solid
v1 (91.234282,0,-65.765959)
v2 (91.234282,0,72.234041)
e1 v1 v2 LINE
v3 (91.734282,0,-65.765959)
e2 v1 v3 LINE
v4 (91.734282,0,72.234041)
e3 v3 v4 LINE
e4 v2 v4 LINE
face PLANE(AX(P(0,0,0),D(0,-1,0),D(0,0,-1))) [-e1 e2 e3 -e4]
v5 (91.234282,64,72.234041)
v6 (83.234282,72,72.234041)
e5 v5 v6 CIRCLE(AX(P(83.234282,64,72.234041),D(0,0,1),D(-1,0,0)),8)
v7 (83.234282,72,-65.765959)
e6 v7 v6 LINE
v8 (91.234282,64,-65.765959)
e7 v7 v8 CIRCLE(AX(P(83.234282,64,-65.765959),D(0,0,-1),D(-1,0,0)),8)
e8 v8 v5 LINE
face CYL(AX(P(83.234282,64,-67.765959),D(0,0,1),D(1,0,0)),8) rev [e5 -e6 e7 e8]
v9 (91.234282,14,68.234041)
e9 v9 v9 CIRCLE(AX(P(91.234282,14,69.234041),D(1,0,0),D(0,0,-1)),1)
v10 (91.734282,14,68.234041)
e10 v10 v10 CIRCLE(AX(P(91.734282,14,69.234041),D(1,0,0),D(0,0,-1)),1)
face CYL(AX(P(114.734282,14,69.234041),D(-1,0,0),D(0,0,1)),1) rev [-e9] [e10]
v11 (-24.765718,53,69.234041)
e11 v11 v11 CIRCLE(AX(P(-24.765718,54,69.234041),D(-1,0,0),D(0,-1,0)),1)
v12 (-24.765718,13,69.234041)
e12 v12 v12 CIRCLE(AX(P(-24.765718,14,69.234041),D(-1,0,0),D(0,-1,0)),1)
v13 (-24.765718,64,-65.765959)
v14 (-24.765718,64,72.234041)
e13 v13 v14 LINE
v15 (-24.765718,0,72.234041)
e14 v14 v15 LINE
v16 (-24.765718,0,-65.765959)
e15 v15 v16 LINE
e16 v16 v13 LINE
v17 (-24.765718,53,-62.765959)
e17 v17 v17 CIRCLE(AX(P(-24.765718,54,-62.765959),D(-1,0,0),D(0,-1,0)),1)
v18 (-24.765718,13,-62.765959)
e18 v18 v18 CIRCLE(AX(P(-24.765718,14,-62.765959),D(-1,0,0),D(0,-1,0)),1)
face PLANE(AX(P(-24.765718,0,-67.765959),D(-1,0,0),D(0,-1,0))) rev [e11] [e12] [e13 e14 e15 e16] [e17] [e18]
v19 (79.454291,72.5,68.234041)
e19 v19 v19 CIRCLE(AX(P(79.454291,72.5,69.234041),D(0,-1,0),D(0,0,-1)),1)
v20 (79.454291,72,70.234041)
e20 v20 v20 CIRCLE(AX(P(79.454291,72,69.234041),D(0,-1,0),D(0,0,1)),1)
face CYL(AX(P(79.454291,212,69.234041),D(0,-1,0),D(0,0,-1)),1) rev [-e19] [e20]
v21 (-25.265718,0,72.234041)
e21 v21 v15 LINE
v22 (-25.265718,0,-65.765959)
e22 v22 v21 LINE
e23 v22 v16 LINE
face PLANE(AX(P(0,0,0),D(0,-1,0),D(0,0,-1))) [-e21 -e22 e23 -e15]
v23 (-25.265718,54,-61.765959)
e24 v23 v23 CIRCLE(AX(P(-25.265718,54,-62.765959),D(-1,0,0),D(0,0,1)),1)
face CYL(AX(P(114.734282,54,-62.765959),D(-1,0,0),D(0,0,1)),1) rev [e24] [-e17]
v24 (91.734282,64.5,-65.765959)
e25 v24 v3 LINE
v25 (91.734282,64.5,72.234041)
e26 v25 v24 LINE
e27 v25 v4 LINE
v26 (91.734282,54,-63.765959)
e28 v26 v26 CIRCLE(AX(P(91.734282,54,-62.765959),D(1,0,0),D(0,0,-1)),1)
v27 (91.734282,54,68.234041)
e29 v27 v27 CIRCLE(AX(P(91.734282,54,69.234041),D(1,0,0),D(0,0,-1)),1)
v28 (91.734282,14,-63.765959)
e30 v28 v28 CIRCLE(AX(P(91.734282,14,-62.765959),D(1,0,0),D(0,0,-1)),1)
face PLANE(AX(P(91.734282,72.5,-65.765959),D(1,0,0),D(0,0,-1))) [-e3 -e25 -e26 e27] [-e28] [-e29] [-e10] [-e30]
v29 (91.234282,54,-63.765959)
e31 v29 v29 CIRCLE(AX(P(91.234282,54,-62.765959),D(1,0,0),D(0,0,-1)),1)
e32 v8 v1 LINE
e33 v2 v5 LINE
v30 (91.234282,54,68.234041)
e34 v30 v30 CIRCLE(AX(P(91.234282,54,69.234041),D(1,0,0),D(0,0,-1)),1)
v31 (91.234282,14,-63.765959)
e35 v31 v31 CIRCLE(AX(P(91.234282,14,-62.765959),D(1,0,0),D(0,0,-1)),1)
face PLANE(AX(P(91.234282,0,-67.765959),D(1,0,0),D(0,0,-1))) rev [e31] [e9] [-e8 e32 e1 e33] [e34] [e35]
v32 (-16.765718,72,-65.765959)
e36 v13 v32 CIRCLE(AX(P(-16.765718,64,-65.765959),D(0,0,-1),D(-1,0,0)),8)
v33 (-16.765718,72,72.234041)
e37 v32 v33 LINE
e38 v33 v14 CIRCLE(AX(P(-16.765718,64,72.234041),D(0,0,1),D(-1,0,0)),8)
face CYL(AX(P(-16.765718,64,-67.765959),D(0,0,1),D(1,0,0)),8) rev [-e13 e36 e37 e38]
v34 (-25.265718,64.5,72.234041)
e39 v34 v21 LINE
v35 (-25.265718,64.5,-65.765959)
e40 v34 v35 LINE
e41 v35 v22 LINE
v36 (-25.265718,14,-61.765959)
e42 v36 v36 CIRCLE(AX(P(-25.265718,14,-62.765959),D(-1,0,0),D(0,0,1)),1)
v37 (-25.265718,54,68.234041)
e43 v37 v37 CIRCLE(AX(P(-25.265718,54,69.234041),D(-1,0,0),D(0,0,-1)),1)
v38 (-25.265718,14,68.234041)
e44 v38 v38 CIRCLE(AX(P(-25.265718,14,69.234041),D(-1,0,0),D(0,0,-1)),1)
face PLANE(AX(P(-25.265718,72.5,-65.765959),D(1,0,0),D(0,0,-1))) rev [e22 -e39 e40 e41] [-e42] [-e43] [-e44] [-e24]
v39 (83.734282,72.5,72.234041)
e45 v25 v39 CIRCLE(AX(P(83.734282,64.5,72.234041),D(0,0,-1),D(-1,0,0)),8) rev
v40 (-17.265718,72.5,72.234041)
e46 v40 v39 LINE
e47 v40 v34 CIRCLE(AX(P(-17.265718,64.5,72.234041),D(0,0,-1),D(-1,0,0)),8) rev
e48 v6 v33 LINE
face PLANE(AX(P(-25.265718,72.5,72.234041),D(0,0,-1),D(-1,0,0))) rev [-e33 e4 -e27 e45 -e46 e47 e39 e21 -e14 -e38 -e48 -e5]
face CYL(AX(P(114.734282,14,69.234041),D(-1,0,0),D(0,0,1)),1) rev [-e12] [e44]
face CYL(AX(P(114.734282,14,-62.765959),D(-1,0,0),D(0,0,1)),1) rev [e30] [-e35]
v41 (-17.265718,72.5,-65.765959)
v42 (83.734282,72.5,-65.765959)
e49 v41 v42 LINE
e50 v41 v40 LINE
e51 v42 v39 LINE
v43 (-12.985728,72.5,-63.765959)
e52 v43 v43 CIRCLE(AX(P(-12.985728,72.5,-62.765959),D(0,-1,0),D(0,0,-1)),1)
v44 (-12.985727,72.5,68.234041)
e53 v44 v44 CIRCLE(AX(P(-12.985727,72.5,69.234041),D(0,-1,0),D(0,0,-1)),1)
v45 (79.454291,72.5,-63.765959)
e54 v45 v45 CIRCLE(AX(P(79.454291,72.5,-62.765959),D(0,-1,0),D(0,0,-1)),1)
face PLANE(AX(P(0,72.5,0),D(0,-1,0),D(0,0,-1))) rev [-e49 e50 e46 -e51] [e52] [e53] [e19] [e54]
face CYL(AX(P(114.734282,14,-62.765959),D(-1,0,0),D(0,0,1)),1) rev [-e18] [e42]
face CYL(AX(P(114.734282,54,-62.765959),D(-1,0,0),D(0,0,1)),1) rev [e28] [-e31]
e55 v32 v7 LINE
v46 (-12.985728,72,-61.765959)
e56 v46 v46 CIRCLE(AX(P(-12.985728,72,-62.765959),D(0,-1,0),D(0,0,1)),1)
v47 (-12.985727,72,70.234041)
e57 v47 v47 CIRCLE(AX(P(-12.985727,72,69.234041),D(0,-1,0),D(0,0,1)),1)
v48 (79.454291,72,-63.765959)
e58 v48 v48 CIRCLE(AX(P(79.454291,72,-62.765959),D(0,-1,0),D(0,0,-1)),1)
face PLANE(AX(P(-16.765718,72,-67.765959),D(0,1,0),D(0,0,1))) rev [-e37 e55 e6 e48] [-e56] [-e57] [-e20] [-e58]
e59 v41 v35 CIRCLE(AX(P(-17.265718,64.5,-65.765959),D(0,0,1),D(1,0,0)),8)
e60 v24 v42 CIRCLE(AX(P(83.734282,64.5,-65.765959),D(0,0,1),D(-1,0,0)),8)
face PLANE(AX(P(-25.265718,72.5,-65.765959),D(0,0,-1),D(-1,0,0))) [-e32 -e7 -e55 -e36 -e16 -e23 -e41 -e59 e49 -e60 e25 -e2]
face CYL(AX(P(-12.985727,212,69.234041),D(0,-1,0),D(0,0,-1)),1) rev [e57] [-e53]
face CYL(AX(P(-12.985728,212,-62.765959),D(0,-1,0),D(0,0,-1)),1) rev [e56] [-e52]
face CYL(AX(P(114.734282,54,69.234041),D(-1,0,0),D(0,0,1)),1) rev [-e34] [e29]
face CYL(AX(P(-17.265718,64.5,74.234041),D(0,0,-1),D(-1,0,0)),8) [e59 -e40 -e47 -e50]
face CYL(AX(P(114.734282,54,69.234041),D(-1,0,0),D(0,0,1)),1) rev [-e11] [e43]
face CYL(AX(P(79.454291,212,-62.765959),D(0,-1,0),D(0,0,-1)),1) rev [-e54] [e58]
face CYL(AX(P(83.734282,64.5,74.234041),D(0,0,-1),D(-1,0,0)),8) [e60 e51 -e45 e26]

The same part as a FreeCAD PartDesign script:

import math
import FreeCAD as App
import Part
import Sketcher


def add_polygon(sketch, points):
    """Adds a closed chain of lines whose ends are joined by coincident constraints."""
    first, n = sketch.GeometryCount, len(points)
    for a, b in zip(points, points[1:] + points[:1]):
        sketch.addGeometry(Part.LineSegment(App.Vector(*a, 0), App.Vector(*b, 0)), False)
    for i in range(n):
        sketch.addConstraint(Sketcher.Constraint("Coincident", first + i, 2, first + (i + 1) % n, 1))

doc = App.newDocument("Part")
body = doc.addObject("PartDesign::Body", "Body")

sketch1 = doc.addObject("Sketcher::SketchObject", "Sketch")
body.addObject(sketch1)
sketch1.AttachmentSupport = (doc.XZ_Plane, [""])
sketch1.MapMode = "FlatFace"
add_polygon(sketch1, [(-25, -66), (-25, 72), (92, 72), (92, -66)])
sketch1.addConstraint(Sketcher.Constraint("Vertical", 0))
sketch1.addConstraint(Sketcher.Constraint("Horizontal", 1))
sketch1.addConstraint(Sketcher.Constraint("Vertical", 2))
sketch1.addConstraint(Sketcher.Constraint("Horizontal", 3))
sketch1.addConstraint(Sketcher.Constraint("DistanceX", 1, 1, 1, 2, 117.0))
sketch1.addConstraint(Sketcher.Constraint("DistanceY", 0, 1, 0, 2, 138.0))
sketch1.addConstraint(Sketcher.Constraint("DistanceX", 0, 2, -1, 1, 25.265718))
sketch1.addConstraint(Sketcher.Constraint("DistanceY", -1, 1, 0, 2, 72.234041))
pad1 = doc.addObject("PartDesign::Pad", "Pad")
body.addObject(pad1)
pad1.Profile = sketch1
pad1.Length = 72.5
pad1.Reversed = True

sketch2 = doc.addObject("Sketcher::SketchObject", "Sketch001")
body.addObject(sketch2)
sketch2.AttachmentSupport = (doc.XY_Plane, [""])
sketch2.MapMode = "FlatFace"
sketch2.AttachmentOffset = App.Placement(App.Vector(0, 0, -65.765959), App.Rotation())
sketch2.addGeometry(Part.LineSegment(App.Vector(92, 72, 0), App.Vector(92, 64, 0)), False)
sketch2.addGeometry(Part.ArcOfCircle(Part.Circle(App.Vector(84, 64, 0), App.Vector(0, 0, 1), 8), math.radians(0), math.radians(90)), False)
sketch2.addGeometry(Part.LineSegment(App.Vector(84, 72, 0), App.Vector(92, 72, 0)), False)
sketch2.addGeometry(Part.LineSegment(App.Vector(-25, 72, 0), App.Vector(-17, 72, 0)), False)
sketch2.addGeometry(Part.ArcOfCircle(Part.Circle(App.Vector(-17, 64, 0), App.Vector(0, 0, 1), 8), math.radians(90), math.radians(180)), False)
sketch2.addGeometry(Part.LineSegment(App.Vector(-25, 64, 0), App.Vector(-25, 72, 0)), False)
sketch2.addConstraint(Sketcher.Constraint("Tangent", 0, 2, 1, 1))
sketch2.addConstraint(Sketcher.Constraint("Tangent", 1, 2, 2, 1))
sketch2.addConstraint(Sketcher.Constraint("Coincident", 2, 2, 0, 1))
sketch2.addConstraint(Sketcher.Constraint("Tangent", 3, 2, 4, 1))
sketch2.addConstraint(Sketcher.Constraint("Tangent", 4, 2, 5, 1))
sketch2.addConstraint(Sketcher.Constraint("Coincident", 5, 2, 3, 1))
sketch2.addConstraint(Sketcher.Constraint("Vertical", 0))
sketch2.addConstraint(Sketcher.Constraint("Horizontal", 2))
sketch2.addConstraint(Sketcher.Constraint("Horizontal", 3))
sketch2.addConstraint(Sketcher.Constraint("Vertical", 5))
sketch2.addConstraint(Sketcher.Constraint("Equal", 1, 4))
sketch2.addConstraint(Sketcher.Constraint("Horizontal", 1, 3, 4, 3))
sketch2.addConstraint(Sketcher.Constraint("Radius", 1, 8.0))
sketch2.addConstraint(Sketcher.Constraint("DistanceX", 4, 3, 1, 3, 101.0))
sketch2.addConstraint(Sketcher.Constraint("DistanceY", -1, 1, 1, 3, 64.5))
sketch2.addConstraint(Sketcher.Constraint("DistanceX", -1, 1, 1, 3, 83.734282))
pocket1 = doc.addObject("PartDesign::Pocket", "Pocket")
body.addObject(pocket1)
pocket1.Profile = sketch2
pocket1.Length = 140
pocket1.Reversed = True

sketch3 = doc.addObject("Sketcher::SketchObject", "Sketch002")
body.addObject(sketch3)
sketch3.AttachmentSupport = (doc.XY_Plane, [""])
sketch3.MapMode = "FlatFace"
sketch3.AttachmentOffset = App.Placement(App.Vector(0, 0, 72.234041), App.Rotation())
sketch3.addGeometry(Part.LineSegment(App.Vector(-25, 0, 0), App.Vector(91, 0, 0)), False)
sketch3.addGeometry(Part.LineSegment(App.Vector(91, 0, 0), App.Vector(91, 64, 0)), False)
sketch3.addGeometry(Part.ArcOfCircle(Part.Circle(App.Vector(83, 64, 0), App.Vector(0, 0, 1), 8), math.radians(0), math.radians(90)), False)
sketch3.addGeometry(Part.LineSegment(App.Vector(83, 72, 0), App.Vector(-17, 72, 0)), False)
sketch3.addGeometry(Part.ArcOfCircle(Part.Circle(App.Vector(-17, 64, 0), App.Vector(0, 0, 1), 8), math.radians(90), math.radians(180)), False)
sketch3.addGeometry(Part.LineSegment(App.Vector(-25, 64, 0), App.Vector(-25, 0, 0)), False)
sketch3.addConstraint(Sketcher.Constraint("Coincident", 0, 2, 1, 1))
sketch3.addConstraint(Sketcher.Constraint("Tangent", 1, 2, 2, 1))
sketch3.addConstraint(Sketcher.Constraint("Tangent", 2, 2, 3, 1))
sketch3.addConstraint(Sketcher.Constraint("Tangent", 3, 2, 4, 1))
sketch3.addConstraint(Sketcher.Constraint("Tangent", 4, 2, 5, 1))
sketch3.addConstraint(Sketcher.Constraint("Coincident", 5, 2, 0, 1))
sketch3.addConstraint(Sketcher.Constraint("Horizontal", 0))
sketch3.addConstraint(Sketcher.Constraint("Vertical", 1))
sketch3.addConstraint(Sketcher.Constraint("Horizontal", 3))
sketch3.addConstraint(Sketcher.Constraint("Vertical", 5))
sketch3.addConstraint(Sketcher.Constraint("Equal", 2, 4))
sketch3.addConstraint(Sketcher.Constraint("PointOnObject", 0, 2, -1))
sketch3.addConstraint(Sketcher.Constraint("Radius", 2, 8.0))
sketch3.addConstraint(Sketcher.Constraint("DistanceX", 0, 1, 0, 2, 116.0))
sketch3.addConstraint(Sketcher.Constraint("DistanceY", 1, 1, 1, 2, 64.0))
sketch3.addConstraint(Sketcher.Constraint("DistanceX", -1, 1, 2, 3, 83.234282))
pocket2 = doc.addObject("PartDesign::Pocket", "Pocket001")
body.addObject(pocket2)
pocket2.Profile = sketch3
pocket2.Length = 140

sketch4 = doc.addObject("Sketcher::SketchObject", "Sketch003")
body.addObject(sketch4)
sketch4.AttachmentSupport = (doc.YZ_Plane, [""])
sketch4.MapMode = "FlatFace"
sketch4.AttachmentOffset = App.Placement(App.Vector(0, 0, -25.265718), App.Rotation())
sketch4.addGeometry(Part.Circle(App.Vector(14, -62.8, 0), App.Vector(0, 0, 1), 1), False)
sketch4.addGeometry(Part.Circle(App.Vector(14, 69.2, 0), App.Vector(0, 0, 1), 1), False)
sketch4.addGeometry(Part.Circle(App.Vector(54, -62.8, 0), App.Vector(0, 0, 1), 1), False)
sketch4.addGeometry(Part.Circle(App.Vector(54, 69.2, 0), App.Vector(0, 0, 1), 1), False)
sketch4.addConstraint(Sketcher.Constraint("Equal", 0, 1))
sketch4.addConstraint(Sketcher.Constraint("Equal", 1, 2))
sketch4.addConstraint(Sketcher.Constraint("Equal", 2, 3))
sketch4.addConstraint(Sketcher.Constraint("Horizontal", 0, 3, 2, 3))
sketch4.addConstraint(Sketcher.Constraint("Horizontal", 1, 3, 3, 3))
sketch4.addConstraint(Sketcher.Constraint("Vertical", 0, 3, 1, 3))
sketch4.addConstraint(Sketcher.Constraint("Vertical", 2, 3, 3, 3))
sketch4.addConstraint(Sketcher.Constraint("Diameter", 0, 2.0))
sketch4.addConstraint(Sketcher.Constraint("DistanceX", -1, 1, 0, 3, 14.0))
sketch4.addConstraint(Sketcher.Constraint("DistanceX", -1, 1, 2, 3, 54.0))
sketch4.addConstraint(Sketcher.Constraint("DistanceY", 0, 3, 1, 3, 132.0))
sketch4.addConstraint(Sketcher.Constraint("DistanceY", 0, 3, -1, 1, 62.765959))
pocket3 = doc.addObject("PartDesign::Pocket", "Pocket002")
body.addObject(pocket3)
pocket3.Profile = sketch4
pocket3.Length = 140
pocket3.Reversed = True

sketch5 = doc.addObject("Sketcher::SketchObject", "Sketch004")
body.addObject(sketch5)
sketch5.AttachmentSupport = (doc.XZ_Plane, [""])
sketch5.MapMode = "FlatFace"
sketch5.AttachmentOffset = App.Placement(App.Vector(0, 0, -72), App.Rotation())
sketch5.addGeometry(Part.Circle(App.Vector(79.5, -62.8, 0), App.Vector(0, 0, 1), 1), False)
sketch5.addGeometry(Part.Circle(App.Vector(582.9, -16.1, 0), App.Vector(0, 0, 1), 1), False)
sketch5.addGeometry(Part.Circle(App.Vector(-13, 69.2, 0), App.Vector(0, 0, 1), 1), False)
sketch5.addGeometry(Part.Circle(App.Vector(79.5, 69.2, 0), App.Vector(0, 0, 1), 1), False)
sketch5.addGeometry(Part.Circle(App.Vector(-13, -62.8, 0), App.Vector(0, 0, 1), 1), False)
sketch5.addConstraint(Sketcher.Constraint("Equal", 0, 1))
sketch5.addConstraint(Sketcher.Constraint("Equal", 1, 2))
sketch5.addConstraint(Sketcher.Constraint("Equal", 2, 3))
sketch5.addConstraint(Sketcher.Constraint("Equal", 3, 4))
sketch5.addConstraint(Sketcher.Constraint("Horizontal", 2, 3, 3, 3))
sketch5.addConstraint(Sketcher.Constraint("Horizontal", 0, 3, 4, 3))
sketch5.addConstraint(Sketcher.Constraint("Vertical", 0, 3, 3, 3))
sketch5.addConstraint(Sketcher.Constraint("Vertical", 2, 3, 4, 3))
sketch5.addConstraint(Sketcher.Constraint("Diameter", 0, 2.0))
sketch5.addConstraint(Sketcher.Constraint("DistanceY", 0, 3, 2, 3, 132.0))
sketch5.addConstraint(Sketcher.Constraint("DistanceX", -1, 1, 0, 3, 79.454291))
sketch5.addConstraint(Sketcher.Constraint("DistanceY", 0, 3, -1, 1, 62.765959))
sketch5.addConstraint(Sketcher.Constraint("DistanceX", -1, 1, 1, 3, 582.904669))
sketch5.addConstraint(Sketcher.Constraint("DistanceY", 1, 3, -1, 1, 16.142688))
sketch5.addConstraint(Sketcher.Constraint("DistanceX", 2, 3, 0, 3, 92.440019))
pocket4 = doc.addObject("PartDesign::Pocket", "Pocket003")
body.addObject(pocket4)
pocket4.Profile = sketch5
pocket4.Length = 140

doc.recompute()
